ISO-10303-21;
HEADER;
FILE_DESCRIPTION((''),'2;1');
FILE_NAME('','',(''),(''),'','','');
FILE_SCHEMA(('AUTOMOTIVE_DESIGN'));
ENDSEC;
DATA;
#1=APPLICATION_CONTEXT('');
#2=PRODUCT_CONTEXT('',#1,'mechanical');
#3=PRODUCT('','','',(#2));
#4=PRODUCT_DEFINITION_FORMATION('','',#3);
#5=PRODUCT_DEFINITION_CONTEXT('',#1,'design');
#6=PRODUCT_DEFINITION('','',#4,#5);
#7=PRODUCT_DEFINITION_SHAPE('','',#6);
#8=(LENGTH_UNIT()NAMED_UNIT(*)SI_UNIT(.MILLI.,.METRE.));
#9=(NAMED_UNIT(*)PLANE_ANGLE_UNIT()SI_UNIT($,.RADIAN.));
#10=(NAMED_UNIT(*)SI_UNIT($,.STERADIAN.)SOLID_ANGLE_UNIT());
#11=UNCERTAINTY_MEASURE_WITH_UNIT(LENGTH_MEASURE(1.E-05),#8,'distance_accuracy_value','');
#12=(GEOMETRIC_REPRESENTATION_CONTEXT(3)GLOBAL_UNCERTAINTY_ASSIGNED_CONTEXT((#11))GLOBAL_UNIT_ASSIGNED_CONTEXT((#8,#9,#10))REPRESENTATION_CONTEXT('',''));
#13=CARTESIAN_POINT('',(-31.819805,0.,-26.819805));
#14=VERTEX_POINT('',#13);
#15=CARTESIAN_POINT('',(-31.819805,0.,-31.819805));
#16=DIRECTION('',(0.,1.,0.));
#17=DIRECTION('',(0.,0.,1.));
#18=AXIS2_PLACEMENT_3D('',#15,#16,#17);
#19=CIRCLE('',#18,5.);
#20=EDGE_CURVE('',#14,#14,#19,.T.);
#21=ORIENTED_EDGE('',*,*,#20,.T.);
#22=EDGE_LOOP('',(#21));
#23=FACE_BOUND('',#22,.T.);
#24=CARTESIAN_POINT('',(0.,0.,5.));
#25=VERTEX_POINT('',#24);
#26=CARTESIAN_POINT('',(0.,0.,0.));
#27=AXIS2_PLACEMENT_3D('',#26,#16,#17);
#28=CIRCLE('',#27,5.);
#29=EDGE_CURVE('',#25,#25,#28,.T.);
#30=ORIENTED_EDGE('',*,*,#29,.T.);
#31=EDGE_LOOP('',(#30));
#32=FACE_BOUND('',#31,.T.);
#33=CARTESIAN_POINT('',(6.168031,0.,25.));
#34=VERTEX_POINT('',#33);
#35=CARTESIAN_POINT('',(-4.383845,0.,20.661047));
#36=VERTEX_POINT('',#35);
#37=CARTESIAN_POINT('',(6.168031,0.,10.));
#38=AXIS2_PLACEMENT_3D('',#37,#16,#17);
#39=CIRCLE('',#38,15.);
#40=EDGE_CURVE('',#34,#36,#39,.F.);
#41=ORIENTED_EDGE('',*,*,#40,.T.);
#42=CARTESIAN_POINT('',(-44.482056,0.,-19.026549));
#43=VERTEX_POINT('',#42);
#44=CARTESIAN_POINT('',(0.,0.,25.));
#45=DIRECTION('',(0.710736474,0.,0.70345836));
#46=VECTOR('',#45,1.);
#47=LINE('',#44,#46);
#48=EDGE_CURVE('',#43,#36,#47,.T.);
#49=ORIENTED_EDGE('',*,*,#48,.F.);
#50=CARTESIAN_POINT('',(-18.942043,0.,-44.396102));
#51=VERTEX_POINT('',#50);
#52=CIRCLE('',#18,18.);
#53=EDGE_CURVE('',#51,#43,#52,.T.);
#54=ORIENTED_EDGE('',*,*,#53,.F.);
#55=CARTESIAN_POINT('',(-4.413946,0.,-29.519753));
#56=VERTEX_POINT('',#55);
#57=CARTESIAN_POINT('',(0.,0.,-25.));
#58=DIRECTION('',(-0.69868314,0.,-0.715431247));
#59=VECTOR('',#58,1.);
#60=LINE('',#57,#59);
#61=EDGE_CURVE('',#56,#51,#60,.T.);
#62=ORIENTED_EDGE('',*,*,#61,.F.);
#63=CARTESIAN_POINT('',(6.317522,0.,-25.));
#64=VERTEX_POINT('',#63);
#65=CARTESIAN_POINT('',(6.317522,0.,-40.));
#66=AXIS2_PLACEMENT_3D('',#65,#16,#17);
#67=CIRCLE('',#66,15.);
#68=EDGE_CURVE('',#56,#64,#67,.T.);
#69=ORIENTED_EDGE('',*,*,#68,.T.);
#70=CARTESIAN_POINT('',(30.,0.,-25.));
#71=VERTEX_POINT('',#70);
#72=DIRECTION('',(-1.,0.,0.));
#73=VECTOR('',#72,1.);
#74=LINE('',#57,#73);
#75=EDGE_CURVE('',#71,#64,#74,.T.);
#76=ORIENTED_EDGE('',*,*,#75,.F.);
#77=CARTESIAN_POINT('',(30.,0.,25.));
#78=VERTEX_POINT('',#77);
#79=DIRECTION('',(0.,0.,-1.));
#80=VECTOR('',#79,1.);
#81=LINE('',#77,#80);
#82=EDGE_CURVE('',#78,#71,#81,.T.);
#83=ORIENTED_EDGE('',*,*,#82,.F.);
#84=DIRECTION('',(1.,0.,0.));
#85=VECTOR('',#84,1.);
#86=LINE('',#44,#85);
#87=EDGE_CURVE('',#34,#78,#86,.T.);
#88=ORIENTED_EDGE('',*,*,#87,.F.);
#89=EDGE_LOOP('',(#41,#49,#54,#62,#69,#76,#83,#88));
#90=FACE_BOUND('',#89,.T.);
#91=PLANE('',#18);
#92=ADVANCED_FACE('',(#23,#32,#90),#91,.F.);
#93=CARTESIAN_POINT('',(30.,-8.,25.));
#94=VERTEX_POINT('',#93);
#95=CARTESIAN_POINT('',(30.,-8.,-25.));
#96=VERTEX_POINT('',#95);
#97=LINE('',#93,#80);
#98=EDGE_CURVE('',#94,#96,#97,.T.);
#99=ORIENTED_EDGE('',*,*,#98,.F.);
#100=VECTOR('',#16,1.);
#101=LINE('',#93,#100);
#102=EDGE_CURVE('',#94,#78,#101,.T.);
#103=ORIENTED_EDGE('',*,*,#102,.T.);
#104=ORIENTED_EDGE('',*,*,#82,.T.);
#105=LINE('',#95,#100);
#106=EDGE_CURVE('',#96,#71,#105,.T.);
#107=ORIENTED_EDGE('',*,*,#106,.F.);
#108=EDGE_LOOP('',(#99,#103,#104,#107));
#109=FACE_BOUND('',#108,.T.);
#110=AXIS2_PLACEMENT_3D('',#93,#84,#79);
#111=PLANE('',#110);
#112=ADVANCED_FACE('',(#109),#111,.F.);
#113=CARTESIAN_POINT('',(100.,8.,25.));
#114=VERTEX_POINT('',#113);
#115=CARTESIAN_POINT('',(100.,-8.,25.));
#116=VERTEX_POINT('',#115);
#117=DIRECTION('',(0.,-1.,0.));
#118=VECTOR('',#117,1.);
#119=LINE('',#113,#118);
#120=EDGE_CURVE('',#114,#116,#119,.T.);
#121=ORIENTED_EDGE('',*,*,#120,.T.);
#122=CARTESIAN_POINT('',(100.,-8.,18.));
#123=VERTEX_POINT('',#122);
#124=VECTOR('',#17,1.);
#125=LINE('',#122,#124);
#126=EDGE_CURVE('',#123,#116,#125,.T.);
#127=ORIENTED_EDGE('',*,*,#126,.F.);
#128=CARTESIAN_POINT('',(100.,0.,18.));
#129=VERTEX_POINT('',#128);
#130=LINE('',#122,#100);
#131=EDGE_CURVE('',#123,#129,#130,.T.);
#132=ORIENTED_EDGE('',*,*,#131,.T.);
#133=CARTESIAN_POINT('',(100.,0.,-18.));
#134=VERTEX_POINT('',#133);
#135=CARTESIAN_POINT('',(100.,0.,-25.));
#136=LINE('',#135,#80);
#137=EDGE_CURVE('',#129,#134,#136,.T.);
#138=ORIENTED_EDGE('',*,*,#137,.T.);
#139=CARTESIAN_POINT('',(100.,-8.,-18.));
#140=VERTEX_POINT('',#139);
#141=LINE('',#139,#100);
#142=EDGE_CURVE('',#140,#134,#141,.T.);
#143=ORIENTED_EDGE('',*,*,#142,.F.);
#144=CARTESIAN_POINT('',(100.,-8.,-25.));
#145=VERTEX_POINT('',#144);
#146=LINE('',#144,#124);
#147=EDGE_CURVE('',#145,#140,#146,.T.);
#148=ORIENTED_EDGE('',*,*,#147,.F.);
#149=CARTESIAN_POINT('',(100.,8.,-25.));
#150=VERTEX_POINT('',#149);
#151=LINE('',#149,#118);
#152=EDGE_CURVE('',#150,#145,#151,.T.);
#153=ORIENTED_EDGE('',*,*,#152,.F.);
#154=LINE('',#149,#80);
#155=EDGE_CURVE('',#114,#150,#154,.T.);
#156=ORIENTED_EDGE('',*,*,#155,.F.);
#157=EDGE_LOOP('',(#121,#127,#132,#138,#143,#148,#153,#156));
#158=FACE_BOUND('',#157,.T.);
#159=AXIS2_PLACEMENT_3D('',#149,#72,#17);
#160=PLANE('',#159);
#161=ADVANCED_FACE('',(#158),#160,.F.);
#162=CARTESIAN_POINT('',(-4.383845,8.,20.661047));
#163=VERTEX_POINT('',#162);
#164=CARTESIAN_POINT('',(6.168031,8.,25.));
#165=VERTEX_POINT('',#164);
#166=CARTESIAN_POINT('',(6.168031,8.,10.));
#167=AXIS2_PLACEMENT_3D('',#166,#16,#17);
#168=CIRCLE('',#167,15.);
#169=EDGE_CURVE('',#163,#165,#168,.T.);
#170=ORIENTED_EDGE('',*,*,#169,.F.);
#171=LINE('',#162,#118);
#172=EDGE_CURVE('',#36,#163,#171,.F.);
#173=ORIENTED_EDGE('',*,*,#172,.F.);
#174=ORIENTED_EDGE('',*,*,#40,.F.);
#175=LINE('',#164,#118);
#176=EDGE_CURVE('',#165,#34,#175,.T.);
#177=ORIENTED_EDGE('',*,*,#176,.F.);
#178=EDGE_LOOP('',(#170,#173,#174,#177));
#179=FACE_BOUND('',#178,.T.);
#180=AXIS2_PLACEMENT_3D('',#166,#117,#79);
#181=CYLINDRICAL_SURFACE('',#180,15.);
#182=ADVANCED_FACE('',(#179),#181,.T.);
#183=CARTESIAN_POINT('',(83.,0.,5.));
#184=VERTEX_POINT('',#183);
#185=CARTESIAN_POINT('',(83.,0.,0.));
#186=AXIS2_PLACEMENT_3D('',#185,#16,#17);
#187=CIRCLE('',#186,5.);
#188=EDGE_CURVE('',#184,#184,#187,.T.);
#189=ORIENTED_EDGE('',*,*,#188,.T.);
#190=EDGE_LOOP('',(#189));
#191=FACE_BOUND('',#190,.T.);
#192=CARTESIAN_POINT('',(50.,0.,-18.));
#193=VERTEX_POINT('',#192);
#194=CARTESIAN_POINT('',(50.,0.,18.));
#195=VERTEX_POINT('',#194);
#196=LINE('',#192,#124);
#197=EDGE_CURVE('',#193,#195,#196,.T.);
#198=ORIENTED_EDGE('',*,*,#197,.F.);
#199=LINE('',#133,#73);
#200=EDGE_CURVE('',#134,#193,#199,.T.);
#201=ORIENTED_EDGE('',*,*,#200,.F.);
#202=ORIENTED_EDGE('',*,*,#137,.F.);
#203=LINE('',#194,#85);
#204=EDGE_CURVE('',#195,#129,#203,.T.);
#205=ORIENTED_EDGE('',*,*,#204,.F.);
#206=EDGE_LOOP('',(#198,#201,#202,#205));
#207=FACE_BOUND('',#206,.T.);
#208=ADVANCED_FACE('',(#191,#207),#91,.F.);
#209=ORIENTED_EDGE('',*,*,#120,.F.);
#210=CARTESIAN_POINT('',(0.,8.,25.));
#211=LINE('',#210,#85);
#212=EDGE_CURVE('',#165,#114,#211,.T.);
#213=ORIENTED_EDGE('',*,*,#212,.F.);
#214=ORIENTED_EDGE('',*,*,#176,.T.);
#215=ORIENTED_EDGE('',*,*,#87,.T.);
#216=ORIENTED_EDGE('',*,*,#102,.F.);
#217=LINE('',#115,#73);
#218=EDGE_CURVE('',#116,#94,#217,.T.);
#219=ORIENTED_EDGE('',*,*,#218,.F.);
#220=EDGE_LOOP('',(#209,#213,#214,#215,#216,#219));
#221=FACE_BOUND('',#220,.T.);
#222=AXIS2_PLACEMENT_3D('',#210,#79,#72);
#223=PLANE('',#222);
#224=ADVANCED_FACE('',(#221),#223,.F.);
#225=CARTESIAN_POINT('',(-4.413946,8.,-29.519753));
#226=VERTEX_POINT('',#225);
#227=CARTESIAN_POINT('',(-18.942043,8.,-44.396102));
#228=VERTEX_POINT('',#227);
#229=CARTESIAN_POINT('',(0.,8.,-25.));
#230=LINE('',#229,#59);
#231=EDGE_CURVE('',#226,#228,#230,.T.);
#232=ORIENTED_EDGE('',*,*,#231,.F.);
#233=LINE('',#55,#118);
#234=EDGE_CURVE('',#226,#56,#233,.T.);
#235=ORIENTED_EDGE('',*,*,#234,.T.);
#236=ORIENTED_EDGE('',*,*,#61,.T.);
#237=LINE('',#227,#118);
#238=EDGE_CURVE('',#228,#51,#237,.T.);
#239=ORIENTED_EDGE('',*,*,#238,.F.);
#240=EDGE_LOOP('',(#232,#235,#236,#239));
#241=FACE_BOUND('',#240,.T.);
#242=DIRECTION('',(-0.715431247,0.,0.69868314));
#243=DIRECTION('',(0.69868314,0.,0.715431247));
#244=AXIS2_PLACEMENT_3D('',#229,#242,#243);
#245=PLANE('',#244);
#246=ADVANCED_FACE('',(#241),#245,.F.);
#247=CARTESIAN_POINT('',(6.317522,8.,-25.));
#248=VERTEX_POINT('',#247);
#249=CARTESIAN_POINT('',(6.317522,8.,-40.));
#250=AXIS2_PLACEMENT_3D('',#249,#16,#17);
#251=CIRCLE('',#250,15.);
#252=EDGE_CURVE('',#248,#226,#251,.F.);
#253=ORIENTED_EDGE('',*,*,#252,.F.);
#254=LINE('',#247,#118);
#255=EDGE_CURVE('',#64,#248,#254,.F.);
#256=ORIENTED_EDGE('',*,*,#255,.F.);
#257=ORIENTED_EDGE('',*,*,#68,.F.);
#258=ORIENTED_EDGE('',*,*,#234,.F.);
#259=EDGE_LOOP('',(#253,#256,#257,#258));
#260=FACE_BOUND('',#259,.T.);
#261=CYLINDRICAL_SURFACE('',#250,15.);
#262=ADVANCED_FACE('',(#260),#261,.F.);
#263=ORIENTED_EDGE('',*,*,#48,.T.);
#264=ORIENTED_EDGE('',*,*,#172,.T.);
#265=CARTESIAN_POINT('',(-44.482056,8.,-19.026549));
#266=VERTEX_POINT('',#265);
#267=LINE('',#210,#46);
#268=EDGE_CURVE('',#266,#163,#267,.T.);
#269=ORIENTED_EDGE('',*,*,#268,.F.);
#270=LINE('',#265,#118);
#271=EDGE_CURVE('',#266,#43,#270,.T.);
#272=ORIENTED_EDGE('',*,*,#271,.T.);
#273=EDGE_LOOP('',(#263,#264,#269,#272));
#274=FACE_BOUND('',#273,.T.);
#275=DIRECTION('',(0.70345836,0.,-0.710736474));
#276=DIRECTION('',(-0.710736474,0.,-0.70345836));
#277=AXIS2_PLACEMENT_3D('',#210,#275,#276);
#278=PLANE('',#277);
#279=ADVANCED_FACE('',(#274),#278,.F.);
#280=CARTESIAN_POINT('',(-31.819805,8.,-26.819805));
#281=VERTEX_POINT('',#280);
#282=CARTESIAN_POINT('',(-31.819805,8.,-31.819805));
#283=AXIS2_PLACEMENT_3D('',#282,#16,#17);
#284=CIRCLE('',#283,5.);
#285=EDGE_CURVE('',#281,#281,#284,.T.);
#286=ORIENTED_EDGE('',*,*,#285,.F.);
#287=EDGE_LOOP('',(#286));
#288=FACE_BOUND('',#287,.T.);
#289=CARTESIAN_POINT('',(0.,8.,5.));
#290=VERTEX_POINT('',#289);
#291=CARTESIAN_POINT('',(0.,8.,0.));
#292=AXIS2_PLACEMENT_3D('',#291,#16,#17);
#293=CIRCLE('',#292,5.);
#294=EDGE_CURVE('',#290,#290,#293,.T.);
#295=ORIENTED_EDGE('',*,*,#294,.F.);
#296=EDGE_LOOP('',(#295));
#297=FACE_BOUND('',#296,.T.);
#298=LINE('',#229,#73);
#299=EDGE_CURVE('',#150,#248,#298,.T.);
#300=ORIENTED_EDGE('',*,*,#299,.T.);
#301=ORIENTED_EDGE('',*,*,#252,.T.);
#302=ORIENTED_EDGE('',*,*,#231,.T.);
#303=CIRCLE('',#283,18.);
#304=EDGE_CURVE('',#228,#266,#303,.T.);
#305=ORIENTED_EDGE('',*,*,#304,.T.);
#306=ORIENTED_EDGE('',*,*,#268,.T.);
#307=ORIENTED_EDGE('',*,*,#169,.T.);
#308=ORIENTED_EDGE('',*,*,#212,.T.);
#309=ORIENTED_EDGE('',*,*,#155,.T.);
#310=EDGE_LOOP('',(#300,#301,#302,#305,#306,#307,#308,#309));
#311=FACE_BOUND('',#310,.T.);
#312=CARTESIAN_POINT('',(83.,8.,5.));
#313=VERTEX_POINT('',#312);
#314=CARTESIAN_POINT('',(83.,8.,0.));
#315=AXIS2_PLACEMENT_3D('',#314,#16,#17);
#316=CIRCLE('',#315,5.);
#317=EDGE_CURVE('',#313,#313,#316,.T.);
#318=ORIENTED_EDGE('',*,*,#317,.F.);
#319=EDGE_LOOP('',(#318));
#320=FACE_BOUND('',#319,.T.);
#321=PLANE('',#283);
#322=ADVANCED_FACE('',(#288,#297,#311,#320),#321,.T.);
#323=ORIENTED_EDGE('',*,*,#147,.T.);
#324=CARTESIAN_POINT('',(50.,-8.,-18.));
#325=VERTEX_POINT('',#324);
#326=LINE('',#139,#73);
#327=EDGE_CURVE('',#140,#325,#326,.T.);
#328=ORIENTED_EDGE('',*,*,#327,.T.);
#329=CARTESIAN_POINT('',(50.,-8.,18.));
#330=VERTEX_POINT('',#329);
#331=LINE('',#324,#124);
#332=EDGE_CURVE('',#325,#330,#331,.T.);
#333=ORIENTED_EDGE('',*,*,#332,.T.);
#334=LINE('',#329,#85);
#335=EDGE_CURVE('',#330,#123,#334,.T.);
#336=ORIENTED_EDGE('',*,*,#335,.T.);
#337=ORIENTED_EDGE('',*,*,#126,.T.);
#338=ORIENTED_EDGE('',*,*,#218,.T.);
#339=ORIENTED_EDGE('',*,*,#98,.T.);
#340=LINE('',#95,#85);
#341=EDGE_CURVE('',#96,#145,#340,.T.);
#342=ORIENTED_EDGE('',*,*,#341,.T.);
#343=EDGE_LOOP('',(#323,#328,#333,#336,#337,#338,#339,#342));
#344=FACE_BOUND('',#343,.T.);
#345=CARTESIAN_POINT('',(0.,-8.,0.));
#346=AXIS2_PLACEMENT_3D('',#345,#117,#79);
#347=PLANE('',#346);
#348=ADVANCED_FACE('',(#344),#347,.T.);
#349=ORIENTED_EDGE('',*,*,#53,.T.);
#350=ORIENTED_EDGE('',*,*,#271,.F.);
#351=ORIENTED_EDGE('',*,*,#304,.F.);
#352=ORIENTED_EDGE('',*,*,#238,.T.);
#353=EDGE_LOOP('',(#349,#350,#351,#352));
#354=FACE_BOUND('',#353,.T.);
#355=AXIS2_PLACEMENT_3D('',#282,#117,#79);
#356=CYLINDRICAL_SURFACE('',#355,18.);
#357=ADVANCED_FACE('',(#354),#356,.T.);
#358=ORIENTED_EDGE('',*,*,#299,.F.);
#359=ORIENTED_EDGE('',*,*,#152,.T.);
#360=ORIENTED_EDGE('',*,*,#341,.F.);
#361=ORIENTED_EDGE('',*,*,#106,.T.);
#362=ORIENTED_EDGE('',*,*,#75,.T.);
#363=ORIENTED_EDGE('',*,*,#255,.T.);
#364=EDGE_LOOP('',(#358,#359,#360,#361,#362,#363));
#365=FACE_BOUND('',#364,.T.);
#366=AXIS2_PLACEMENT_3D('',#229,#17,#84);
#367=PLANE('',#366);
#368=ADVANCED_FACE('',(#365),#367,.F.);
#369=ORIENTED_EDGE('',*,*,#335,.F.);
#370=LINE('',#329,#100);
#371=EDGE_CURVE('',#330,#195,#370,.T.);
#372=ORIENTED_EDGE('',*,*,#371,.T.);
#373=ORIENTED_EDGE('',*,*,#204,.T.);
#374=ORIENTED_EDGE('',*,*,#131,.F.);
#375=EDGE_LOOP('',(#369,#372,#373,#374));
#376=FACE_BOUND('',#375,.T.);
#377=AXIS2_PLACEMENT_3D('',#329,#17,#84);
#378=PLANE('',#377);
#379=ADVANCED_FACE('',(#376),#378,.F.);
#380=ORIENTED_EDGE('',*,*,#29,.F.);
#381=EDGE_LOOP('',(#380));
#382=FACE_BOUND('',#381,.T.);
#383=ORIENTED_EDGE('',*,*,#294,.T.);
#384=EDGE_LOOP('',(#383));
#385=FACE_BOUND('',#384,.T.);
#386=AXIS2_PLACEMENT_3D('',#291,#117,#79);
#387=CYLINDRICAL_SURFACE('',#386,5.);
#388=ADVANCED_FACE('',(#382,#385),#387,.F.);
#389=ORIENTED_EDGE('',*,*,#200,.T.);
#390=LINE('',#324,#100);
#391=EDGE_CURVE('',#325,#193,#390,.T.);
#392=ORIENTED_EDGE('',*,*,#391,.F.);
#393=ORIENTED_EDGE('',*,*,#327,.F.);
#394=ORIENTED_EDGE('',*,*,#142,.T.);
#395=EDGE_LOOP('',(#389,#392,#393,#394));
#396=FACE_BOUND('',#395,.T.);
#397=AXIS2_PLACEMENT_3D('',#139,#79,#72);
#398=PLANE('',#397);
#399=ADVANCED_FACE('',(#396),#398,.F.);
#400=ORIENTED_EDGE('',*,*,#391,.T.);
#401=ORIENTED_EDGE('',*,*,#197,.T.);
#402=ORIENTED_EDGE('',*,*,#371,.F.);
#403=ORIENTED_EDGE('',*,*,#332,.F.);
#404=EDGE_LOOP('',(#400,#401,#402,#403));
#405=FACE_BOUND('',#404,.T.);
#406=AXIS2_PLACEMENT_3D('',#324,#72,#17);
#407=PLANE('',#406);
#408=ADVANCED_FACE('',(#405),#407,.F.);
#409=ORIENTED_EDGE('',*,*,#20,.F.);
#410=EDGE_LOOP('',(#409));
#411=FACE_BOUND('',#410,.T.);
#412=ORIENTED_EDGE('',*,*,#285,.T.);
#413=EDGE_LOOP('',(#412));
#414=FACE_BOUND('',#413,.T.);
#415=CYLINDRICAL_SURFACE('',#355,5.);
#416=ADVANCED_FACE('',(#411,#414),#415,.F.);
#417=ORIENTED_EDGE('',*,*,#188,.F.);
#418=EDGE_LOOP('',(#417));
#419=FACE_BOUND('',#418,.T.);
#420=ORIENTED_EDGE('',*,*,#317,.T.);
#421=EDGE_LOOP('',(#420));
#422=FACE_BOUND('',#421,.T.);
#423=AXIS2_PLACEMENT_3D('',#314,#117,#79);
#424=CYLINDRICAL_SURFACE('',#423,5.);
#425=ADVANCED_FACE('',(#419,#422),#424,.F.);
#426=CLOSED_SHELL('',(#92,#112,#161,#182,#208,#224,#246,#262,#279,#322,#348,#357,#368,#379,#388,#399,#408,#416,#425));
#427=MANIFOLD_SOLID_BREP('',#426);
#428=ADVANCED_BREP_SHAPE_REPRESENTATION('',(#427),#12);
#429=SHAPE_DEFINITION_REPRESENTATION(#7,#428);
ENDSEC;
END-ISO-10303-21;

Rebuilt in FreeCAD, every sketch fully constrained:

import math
import FreeCAD as App
import Part
import Sketcher
from FreeCAD import Vector


def edges_at(feature, points):
    """Names of the edges that pass closest to the given points."""
    edges = feature.Shape.Edges
    near = lambda p: min(range(len(edges)), key=lambda i: edges[i].distToShape(Part.Vertex(*p))[0])
    return sorted({f"Edge{near(p) + 1}" for p in points})

doc = App.newDocument("Part")
params = doc.addObject("Spreadsheet::Sheet", "Params")
for row, (alias, value) in enumerate([
    ("sketch1_diameter", "10 mm"),
    ("sketch1_radius", "18 mm"),
    ("sketch1_width", "100 mm"),
    ("sketch1_height", "50 mm"),
    ("pad1_length", "8 mm"),
    ("sketch2_width", "70 mm"),
    ("sketch2_width2", "50 mm"),
    ("sketch2_height", "7 mm"),
    ("pad2_length", "8 mm"),
    ("fillet_radius", "15 mm"),
], start=1):
    params.set(f"A{row}", alias)
    params.set(f"B{row}", "=" + value)
    params.setAlias(f"B{row}", alias)

body = doc.addObject("PartDesign::Body", "Body")

# Sketch on XZ plane
sketch1 = body.newObject("Sketcher::SketchObject", "Sketch")
sketch1.AttachmentSupport = (doc.getObject("XZ_Plane"), [""])
sketch1.MapMode = "FlatFace"
sketch1.addGeometry(Part.LineSegment(Vector(0, 25, 0), Vector(100, 25, 0)), False)
sketch1.addGeometry(Part.LineSegment(Vector(100, 25, 0), Vector(100, -25, 0)), False)
sketch1.addGeometry(Part.LineSegment(Vector(100, -25, 0), Vector(0, -25, 0)), False)
sketch1.addGeometry(Part.LineSegment(Vector(0, -25, 0), Vector(-19, -44, 0)), False)
sketch1.addGeometry(Part.ArcOfCircle(Part.Circle(Vector(-32, -32, 0), Vector(0, 0, 1), 18), math.radians(135), math.radians(316)), False)
sketch1.addGeometry(Part.LineSegment(Vector(-44, -19, 0), Vector(0, 25, 0)), False)
sketch1.addGeometry(Part.Circle(Vector(0, 0, 0), Vector(0, 0, 1), 5), False)
sketch1.addGeometry(Part.Circle(Vector(83, 0, 0), Vector(0, 0, 1), 5), False)
sketch1.addGeometry(Part.Circle(Vector(-32, -32, 0), Vector(0, 0, 1), 5), False)
sketch1.addConstraint(Sketcher.Constraint("Coincident", 0, 2, 1, 1))
sketch1.addConstraint(Sketcher.Constraint("Coincident", 1, 2, 2, 1))
sketch1.addConstraint(Sketcher.Constraint("Coincident", 2, 2, 3, 1))
sketch1.addConstraint(Sketcher.Constraint("Tangent", 3, 2, 4, 2))
sketch1.addConstraint(Sketcher.Constraint("Tangent", 4, 1, 5, 1))
sketch1.addConstraint(Sketcher.Constraint("Coincident", 5, 2, 0, 1))
sketch1.addConstraint(Sketcher.Constraint("Horizontal", 0))
sketch1.addConstraint(Sketcher.Constraint("Vertical", 1))
sketch1.addConstraint(Sketcher.Constraint("Horizontal", 2))
sketch1.addConstraint(Sketcher.Constraint("Coincident", 6, 3, -1, 1))
sketch1.addConstraint(Sketcher.Constraint("Coincident", 8, 3, 4, 3))
sketch1.addConstraint(Sketcher.Constraint("Equal", 6, 7))
sketch1.addConstraint(Sketcher.Constraint("Equal", 7, 8))
sketch1.addConstraint(Sketcher.Constraint("Symmetric", 2, 2, 5, 2, -1, 1))
sketch1.addConstraint(Sketcher.Constraint("PointOnObject", 7, 3, -1))
sketch1.addConstraint(Sketcher.Constraint("PointOnObject", 2, 2, -2))
sketch1.addConstraint(Sketcher.Constraint("Diameter", 6, 10.0))
sketch1.addConstraint(Sketcher.Constraint("Radius", 4, 18.0))
sketch1.addConstraint(Sketcher.Constraint("DistanceX", 0, 1, 0, 2, 100.0))
sketch1.addConstraint(Sketcher.Constraint("DistanceY", 1, 2, 1, 1, 50.0))
sketch1.addConstraint(Sketcher.Constraint("DistanceX", -1, 1, 7, 3, 83.0))
sketch1.addConstraint(Sketcher.Constraint("DistanceY", 3, 2, -1, 1, 44.396102))
sketch1.addConstraint(Sketcher.Constraint("DistanceY", 4, 1, -1, 1, 19.026549))
sketch1.setExpression("Constraints[16]", "Params.sketch1_diameter")
sketch1.setExpression("Constraints[17]", "Params.sketch1_radius")
sketch1.setExpression("Constraints[18]", "Params.sketch1_width")
sketch1.setExpression("Constraints[19]", "Params.sketch1_height")
pad1 = body.newObject("PartDesign::Pad", "Pad")
pad1.Profile = sketch1
pad1.setExpression("Length", "Params.pad1_length")
pad1.Reversed = True

# Sketch on XZ plane
sketch2 = body.newObject("Sketcher::SketchObject", "Sketch001")
sketch2.AttachmentSupport = (doc.getObject("XZ_Plane"), [""])
sketch2.MapMode = "FlatFace"
sketch2.addGeometry(Part.LineSegment(Vector(100, 25, 0), Vector(30, 25, 0)), False)
sketch2.addGeometry(Part.LineSegment(Vector(30, 25, 0), Vector(30, -25, 0)), False)
sketch2.addGeometry(Part.LineSegment(Vector(30, -25, 0), Vector(100, -25, 0)), False)
sketch2.addGeometry(Part.LineSegment(Vector(100, -25, 0), Vector(100, -18, 0)), False)
sketch2.addGeometry(Part.LineSegment(Vector(100, -18, 0), Vector(50, -18, 0)), False)
sketch2.addGeometry(Part.LineSegment(Vector(50, -18, 0), Vector(50, 18, 0)), False)
sketch2.addGeometry(Part.LineSegment(Vector(50, 18, 0), Vector(100, 18, 0)), False)
sketch2.addGeometry(Part.LineSegment(Vector(100, 18, 0), Vector(100, 25, 0)), False)
sketch2.addConstraint(Sketcher.Constraint("Coincident", 0, 2, 1, 1))
sketch2.addConstraint(Sketcher.Constraint("Coincident", 1, 2, 2, 1))
sketch2.addConstraint(Sketcher.Constraint("Coincident", 2, 2, 3, 1))
sketch2.addConstraint(Sketcher.Constraint("Coincident", 3, 2, 4, 1))
sketch2.addConstraint(Sketcher.Constraint("Coincident", 4, 2, 5, 1))
sketch2.addConstraint(Sketcher.Constraint("Coincident", 5, 2, 6, 1))
sketch2.addConstraint(Sketcher.Constraint("Coincident", 6, 2, 7, 1))
sketch2.addConstraint(Sketcher.Constraint("Coincident", 7, 2, 0, 1))
sketch2.addConstraint(Sketcher.Constraint("Horizontal", 0))
sketch2.addConstraint(Sketcher.Constraint("Vertical", 1))
sketch2.addConstraint(Sketcher.Constraint("Horizontal", 2))
sketch2.addConstraint(Sketcher.Constraint("Vertical", 3))
sketch2.addConstraint(Sketcher.Constraint("Horizontal", 4))
sketch2.addConstraint(Sketcher.Constraint("Vertical", 5))
sketch2.addConstraint(Sketcher.Constraint("Horizontal", 6))
sketch2.addConstraint(Sketcher.Constraint("Vertical", 7))
sketch2.addConstraint(Sketcher.Constraint("Symmetric", 3, 2, 6, 2, -1))
sketch2.addConstraint(Sketcher.Constraint("Equal", 6, 1))
sketch2.addConstraint(Sketcher.Constraint("Equal", 3, 7))
sketch2.addConstraint(Sketcher.Constraint("DistanceX", 0, 2, 0, 1, 70.0))
sketch2.addConstraint(Sketcher.Constraint("DistanceX", 4, 2, 4, 1, 50.0))
sketch2.addConstraint(Sketcher.Constraint("DistanceY", 3, 1, 3, 2, 7.0))
sketch2.addConstraint(Sketcher.Constraint("DistanceX", -1, 1, 0, 2, 30.0))
sketch2.setExpression("Constraints[19]", "Params.sketch2_width")
sketch2.setExpression("Constraints[20]", "Params.sketch2_width2")
sketch2.setExpression("Constraints[21]", "Params.sketch2_height")
pad2 = body.newObject("PartDesign::Pad", "Pad001")
pad2.Profile = sketch2
pad2.setExpression("Length", "Params.pad2_length")
doc.recompute()

fillet = body.newObject("PartDesign::Fillet", "Fillet")
fillet.Base = (pad2, edges_at(pad2, [(0, 4, -25), (0, 4, 25)]))
fillet.setExpression("Radius", "Params.fillet_radius")

doc.recompute()
